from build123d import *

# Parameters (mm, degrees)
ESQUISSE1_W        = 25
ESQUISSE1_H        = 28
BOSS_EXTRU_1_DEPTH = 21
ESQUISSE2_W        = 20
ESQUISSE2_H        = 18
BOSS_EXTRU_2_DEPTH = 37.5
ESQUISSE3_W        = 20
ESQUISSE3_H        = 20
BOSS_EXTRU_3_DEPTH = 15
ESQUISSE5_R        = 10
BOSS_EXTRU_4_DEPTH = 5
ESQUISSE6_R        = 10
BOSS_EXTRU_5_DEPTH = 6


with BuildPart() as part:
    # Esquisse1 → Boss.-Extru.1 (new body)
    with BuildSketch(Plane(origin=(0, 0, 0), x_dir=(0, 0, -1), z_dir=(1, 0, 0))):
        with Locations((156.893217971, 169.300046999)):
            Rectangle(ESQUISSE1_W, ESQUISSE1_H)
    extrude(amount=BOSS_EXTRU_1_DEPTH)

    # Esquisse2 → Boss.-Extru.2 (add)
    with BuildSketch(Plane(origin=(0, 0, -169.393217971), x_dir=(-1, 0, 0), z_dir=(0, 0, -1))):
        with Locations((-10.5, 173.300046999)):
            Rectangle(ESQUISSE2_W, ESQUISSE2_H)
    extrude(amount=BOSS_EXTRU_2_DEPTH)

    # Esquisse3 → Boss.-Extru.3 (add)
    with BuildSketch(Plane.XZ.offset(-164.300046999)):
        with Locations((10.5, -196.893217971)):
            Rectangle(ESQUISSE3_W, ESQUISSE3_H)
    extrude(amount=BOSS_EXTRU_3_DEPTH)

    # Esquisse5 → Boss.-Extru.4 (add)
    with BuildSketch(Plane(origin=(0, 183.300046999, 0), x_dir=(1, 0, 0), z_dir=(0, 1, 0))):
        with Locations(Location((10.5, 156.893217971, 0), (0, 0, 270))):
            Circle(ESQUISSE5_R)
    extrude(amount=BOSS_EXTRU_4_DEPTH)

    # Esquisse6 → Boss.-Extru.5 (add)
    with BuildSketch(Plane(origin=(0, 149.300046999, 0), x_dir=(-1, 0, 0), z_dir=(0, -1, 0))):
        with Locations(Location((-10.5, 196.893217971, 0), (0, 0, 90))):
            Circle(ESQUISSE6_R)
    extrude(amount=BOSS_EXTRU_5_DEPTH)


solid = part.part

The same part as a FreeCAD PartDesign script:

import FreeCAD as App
import Part
import Sketcher

V = App.Vector


def add_polygon(sketch, points):
    """Adds a closed chain of lines whose ends are joined by coincident constraints."""
    first, n = sketch.GeometryCount, len(points)
    for a, b in zip(points, points[1:] + points[:1]):
        sketch.addGeometry(Part.LineSegment(App.Vector(*a, 0), App.Vector(*b, 0)), False)
    for i in range(n):
        sketch.addConstraint(Sketcher.Constraint("Coincident", first + i, 2, first + (i + 1) % n, 1))

doc = App.newDocument("Part")
body = doc.addObject("PartDesign::Body", "Body")

sketch1 = body.newObject("Sketcher::SketchObject", "Sketch")
sketch1.AttachmentSupport = (doc.getObject("YZ_Plane"), [""])
sketch1.MapMode = "FlatFace"
add_polygon(sketch1, [(183, -144), (155, -144), (155, -169), (183, -169)])
sketch1.addConstraint([
    Sketcher.Constraint("Horizontal", 0),
    Sketcher.Constraint("Vertical", 1),
    Sketcher.Constraint("Horizontal", 2),
    Sketcher.Constraint("Vertical", 3),
    Sketcher.Constraint("DistanceX", 0, 2, 0, 1, 28.0),
    Sketcher.Constraint("DistanceY", 1, 2, 1, 1, 25.0),
    Sketcher.Constraint("DistanceX", -1, 1, 0, 2, 155.300047),
    Sketcher.Constraint("DistanceY", 0, 2, -1, 1, 144.393218),
])
pad1 = body.newObject("PartDesign::Pad", "Pad")
pad1.Profile = sketch1
pad1.Length = 21

sketch2 = body.newObject("Sketcher::SketchObject", "Sketch001")
sketch2.AttachmentSupport = (doc.getObject("XY_Plane"), [""])
sketch2.MapMode = "FlatFace"
sketch2.AttachmentOffset = App.Placement(V(0, 0, -169.393218), App.Rotation())
add_polygon(sketch2, [(20, 182), (20, 164), (0, 164), (0, 182)])
sketch2.addConstraint([
    Sketcher.Constraint("Vertical", 0),
    Sketcher.Constraint("Horizontal", 1),
    Sketcher.Constraint("Vertical", 2),
    Sketcher.Constraint("Horizontal", 3),
    Sketcher.Constraint("DistanceX", 1, 2, 1, 1, 20.0),
    Sketcher.Constraint("DistanceY", 0, 2, 0, 1, 18.0),
    Sketcher.Constraint("DistanceX", -1, 1, 0, 2, 20.5),
    Sketcher.Constraint("DistanceY", -1, 1, 0, 2, 164.300047),
])
pad2 = body.newObject("PartDesign::Pad", "Pad001")
pad2.Profile = sketch2
pad2.Length = 37.5
pad2.Reversed = True

sketch3 = body.newObject("Sketcher::SketchObject", "Sketch002")
sketch3.AttachmentSupport = (doc.getObject("XZ_Plane"), [""])
sketch3.MapMode = "FlatFace"
sketch3.AttachmentOffset = App.Placement(V(0, 0, -164.300047), App.Rotation())
add_polygon(sketch3, [(0, -187), (0, -207), (20, -207), (20, -187)])
sketch3.addConstraint([
    Sketcher.Constraint("Vertical", 0),
    Sketcher.Constraint("Horizontal", 1),
    Sketcher.Constraint("Vertical", 2),
    Sketcher.Constraint("Horizontal", 3),
    Sketcher.Constraint("Equal", 3, 0),
    Sketcher.Constraint("DistanceX", 1, 1, 1, 2, 20.0),
    Sketcher.Constraint("DistanceX", -1, 1, 0, 2, 0.5),
    Sketcher.Constraint("DistanceY", 0, 2, -1, 1, 206.893218),
])
pad3 = body.newObject("PartDesign::Pad", "Pad002")
pad3.Profile = sketch3
pad3.Length = 15

sketch4 = body.newObject("Sketcher::SketchObject", "Sketch003")
sketch4.AttachmentSupport = (doc.getObject("XZ_Plane"), [""])
sketch4.MapMode = "FlatFace"
sketch4.AttachmentOffset = App.Placement(V(0, 0, -183.300047), App.Rotation())
sketch4.addGeometry(Part.Circle(V(10, -157, 0), V(0, 0, 1), 10), False)
sketch4.addConstraint([
    Sketcher.Constraint("Diameter", 0, 20.0),
    Sketcher.Constraint("DistanceX", -1, 1, 0, 3, 10.5),
    Sketcher.Constraint("DistanceY", 0, 3, -1, 1, 156.893218),
])
pad4 = body.newObject("PartDesign::Pad", "Pad003")
pad4.Profile = sketch4
pad4.Length = 5
pad4.Reversed = True

sketch5 = body.newObject("Sketcher::SketchObject", "Sketch004")
sketch5.AttachmentSupport = (doc.getObject("XZ_Plane"), [""])
sketch5.MapMode = "FlatFace"
sketch5.AttachmentOffset = App.Placement(V(0, 0, -149.300047), App.Rotation())
sketch5.addGeometry(Part.Circle(V(10, -197, 0), V(0, 0, 1), 10), False)
sketch5.addConstraint([
    Sketcher.Constraint("Diameter", 0, 20.0),
    Sketcher.Constraint("DistanceX", -1, 1, 0, 3, 10.5),
    Sketcher.Constraint("DistanceY", 0, 3, -1, 1, 196.893218),
])
pad5 = body.newObject("PartDesign::Pad", "Pad004")
pad5.Profile = sketch5
pad5.Length = 6

doc.recompute()
